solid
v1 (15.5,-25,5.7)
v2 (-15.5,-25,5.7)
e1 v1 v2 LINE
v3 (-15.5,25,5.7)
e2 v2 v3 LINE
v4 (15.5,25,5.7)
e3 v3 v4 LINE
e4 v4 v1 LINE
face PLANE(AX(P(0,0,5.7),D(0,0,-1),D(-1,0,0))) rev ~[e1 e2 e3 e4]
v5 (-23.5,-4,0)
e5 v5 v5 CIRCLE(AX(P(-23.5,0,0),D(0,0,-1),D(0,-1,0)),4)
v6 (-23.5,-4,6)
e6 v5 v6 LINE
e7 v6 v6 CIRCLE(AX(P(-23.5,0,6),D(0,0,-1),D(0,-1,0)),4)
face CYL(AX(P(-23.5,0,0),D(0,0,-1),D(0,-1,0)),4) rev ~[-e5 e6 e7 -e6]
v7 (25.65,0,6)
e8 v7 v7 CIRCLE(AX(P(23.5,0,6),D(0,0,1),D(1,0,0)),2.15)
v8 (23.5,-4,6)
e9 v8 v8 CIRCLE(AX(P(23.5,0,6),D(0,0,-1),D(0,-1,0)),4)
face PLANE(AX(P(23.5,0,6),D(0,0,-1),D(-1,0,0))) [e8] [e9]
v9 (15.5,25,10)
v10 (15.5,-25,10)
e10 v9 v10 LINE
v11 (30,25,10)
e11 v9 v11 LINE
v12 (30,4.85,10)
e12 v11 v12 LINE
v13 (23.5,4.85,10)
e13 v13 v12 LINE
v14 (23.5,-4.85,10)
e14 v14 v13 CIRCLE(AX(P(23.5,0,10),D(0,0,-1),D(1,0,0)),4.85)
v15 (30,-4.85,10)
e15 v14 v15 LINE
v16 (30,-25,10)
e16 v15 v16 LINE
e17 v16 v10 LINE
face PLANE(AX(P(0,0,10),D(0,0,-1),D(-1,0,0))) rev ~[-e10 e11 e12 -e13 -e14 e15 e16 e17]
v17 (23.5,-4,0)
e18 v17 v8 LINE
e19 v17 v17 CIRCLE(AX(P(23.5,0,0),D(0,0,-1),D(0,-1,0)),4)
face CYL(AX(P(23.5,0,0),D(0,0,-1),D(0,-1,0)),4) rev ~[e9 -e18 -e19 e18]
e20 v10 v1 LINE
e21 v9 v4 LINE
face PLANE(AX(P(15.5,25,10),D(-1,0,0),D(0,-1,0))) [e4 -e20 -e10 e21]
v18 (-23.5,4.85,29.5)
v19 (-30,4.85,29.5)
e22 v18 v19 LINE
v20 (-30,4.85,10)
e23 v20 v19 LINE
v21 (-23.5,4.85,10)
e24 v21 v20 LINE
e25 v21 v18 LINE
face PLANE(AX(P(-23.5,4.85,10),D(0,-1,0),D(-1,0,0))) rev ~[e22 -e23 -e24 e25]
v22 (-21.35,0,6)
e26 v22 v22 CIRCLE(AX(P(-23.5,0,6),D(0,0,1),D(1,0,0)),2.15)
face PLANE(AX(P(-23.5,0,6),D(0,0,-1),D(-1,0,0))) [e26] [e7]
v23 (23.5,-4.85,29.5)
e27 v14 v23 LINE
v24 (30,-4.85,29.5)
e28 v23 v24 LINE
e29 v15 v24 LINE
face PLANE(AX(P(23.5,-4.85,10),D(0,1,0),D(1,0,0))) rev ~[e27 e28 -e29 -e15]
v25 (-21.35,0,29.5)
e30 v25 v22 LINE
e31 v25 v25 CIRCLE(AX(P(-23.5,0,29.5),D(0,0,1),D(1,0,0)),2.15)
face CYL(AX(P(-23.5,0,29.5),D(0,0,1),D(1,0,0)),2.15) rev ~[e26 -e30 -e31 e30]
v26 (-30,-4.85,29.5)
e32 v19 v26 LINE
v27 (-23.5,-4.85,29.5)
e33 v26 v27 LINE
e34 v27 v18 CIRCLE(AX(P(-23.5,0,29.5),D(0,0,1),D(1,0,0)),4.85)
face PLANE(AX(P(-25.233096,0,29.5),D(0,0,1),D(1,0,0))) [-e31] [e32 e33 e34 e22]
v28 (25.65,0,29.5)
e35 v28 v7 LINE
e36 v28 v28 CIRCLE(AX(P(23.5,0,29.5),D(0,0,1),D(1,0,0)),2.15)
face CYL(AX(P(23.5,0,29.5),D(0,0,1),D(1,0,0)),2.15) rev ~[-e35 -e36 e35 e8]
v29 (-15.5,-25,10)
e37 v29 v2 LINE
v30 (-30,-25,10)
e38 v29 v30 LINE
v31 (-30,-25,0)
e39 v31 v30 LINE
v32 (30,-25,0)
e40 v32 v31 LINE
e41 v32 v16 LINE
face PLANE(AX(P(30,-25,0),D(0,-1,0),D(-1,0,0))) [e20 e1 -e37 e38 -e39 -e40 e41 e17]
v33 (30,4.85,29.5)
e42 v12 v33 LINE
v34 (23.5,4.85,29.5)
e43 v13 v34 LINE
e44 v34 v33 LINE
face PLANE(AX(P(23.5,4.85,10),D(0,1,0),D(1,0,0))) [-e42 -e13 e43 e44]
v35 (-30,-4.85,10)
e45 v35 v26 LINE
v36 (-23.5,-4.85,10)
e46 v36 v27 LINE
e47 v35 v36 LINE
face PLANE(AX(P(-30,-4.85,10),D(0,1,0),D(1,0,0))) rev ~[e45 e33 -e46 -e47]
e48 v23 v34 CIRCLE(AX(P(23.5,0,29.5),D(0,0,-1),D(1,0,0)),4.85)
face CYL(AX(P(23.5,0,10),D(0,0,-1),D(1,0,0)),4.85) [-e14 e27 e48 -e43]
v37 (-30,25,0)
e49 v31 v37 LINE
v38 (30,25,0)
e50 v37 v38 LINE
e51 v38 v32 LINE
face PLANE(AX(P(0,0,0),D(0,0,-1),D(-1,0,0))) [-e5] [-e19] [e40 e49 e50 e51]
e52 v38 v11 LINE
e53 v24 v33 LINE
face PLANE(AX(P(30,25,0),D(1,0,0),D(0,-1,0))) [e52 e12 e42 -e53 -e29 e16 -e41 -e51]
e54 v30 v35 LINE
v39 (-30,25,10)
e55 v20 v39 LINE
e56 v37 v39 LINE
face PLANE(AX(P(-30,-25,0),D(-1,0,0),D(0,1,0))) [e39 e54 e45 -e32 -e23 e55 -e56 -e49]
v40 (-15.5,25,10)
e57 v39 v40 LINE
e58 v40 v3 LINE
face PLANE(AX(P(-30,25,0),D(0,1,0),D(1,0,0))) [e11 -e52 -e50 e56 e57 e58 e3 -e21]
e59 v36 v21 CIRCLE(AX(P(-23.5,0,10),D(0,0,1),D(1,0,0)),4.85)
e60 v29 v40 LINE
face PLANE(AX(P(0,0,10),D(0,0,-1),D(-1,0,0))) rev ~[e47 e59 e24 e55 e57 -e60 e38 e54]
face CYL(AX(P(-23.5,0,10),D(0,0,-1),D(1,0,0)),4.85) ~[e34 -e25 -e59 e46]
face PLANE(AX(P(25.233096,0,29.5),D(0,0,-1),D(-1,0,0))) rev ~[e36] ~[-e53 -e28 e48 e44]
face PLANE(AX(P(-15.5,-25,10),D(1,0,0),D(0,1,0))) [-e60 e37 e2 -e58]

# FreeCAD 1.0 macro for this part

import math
import FreeCAD as App
import Part
import Sketcher

V = App.Vector
Q = App.Units.Quantity


def add_polygon(sketch, points):
    """Adds a closed chain of lines whose ends are joined by coincident constraints."""
    first, n = sketch.GeometryCount, len(points)
    for a, b in zip(points, points[1:] + points[:1]):
        sketch.addGeometry(Part.LineSegment(App.Vector(*a, 0), App.Vector(*b, 0)), False)
    for i in range(n):
        sketch.addConstraint(Sketcher.Constraint("Coincident", first + i, 2, first + (i + 1) % n, 1))

doc = App.newDocument("Part")
params = doc.addObject("Spreadsheet::Sheet", "Params")
for row, (alias, value) in enumerate([
    ("sketch1_height", "50 mm"),
    ("pad1_length", "10 mm"),
    ("sketch2_radius", "4.85 mm"),
    ("sketch2_width", "6.5 mm"),
    ("pad2_length", "19.5 mm"),
    ("sketch3_diameter", "4.3 mm"),
    ("pocket1_length", "72.3664 mm"),
    ("sketch4_diameter", "8 mm"),
    ("pocket2_length", "6 mm"),
    ("sketch5_width", "31 mm"),
    ("sketch5_height", "50 mm"),
    ("pocket3_length", "4.3 mm"),
], start=1):
    params.set(f"A{row}", alias)
    params.set(f"B{row}", "=" + value)
    params.setAlias(f"B{row}", alias)

body = doc.addObject("PartDesign::Body", "Body")

# Sketch on XY plane
sketch1 = body.newObject("Sketcher::SketchObject", "Sketch")
sketch1.AttachmentSupport = (doc.getObject("XY_Plane"), [""])
sketch1.MapMode = "FlatFace"
add_polygon(sketch1, [(-30, -25), (30, -25), (30, 25), (-30, 25)])  # lines 0-3
sketch1.addConstraint([
    Sketcher.Constraint("Horizontal", 0),
    Sketcher.Constraint("Vertical", 1),
    Sketcher.Constraint("Horizontal", 2),
    Sketcher.Constraint("Vertical", 3),
    Sketcher.Constraint("Symmetric", 0, 2, 2, 2, -1, 1),
    Sketcher.Constraint("DistanceX", -1, 1, 0, 2, Q("30 mm")),
    Sketcher.Constraint("DistanceY", 1, 1, 1, 2, Q("50 mm")),
])
sketch1.setExpression("Constraints[10]", "Params.sketch1_height")
pad1 = body.newObject("PartDesign::Pad", "Pad")
pad1.Profile = sketch1
pad1.setExpression("Length", "Params.pad1_length")

# Sketch on XY plane
sketch2 = body.newObject("Sketcher::SketchObject", "Sketch001")
sketch2.AttachmentSupport = (doc.getObject("XY_Plane"), [""])
sketch2.MapMode = "FlatFace"
sketch2.AttachmentOffset = App.Placement(V(0, 0, 10), App.Rotation())
sketch2.addGeometry([
    Part.ArcOfCircle(Part.Circle(V(-23.5, 0, 0), V(0, 0, 1), 4.85), math.radians(-90), math.radians(90)),  # 0
    Part.LineSegment(V(-23.5, 4.85, 0), V(-30, 4.85, 0)),  # 1
    Part.LineSegment(V(-30, 4.85, 0), V(-30, -4.85, 0)),  # 2
    Part.LineSegment(V(-30, -4.85, 0), V(-23.5, -4.85, 0)),  # 3
    Part.LineSegment(V(30, 4.85, 0), V(23.5, 4.85, 0)),  # 4
    Part.ArcOfCircle(Part.Circle(V(23.5, 0, 0), V(0, 0, 1), 4.85), math.radians(90), math.radians(270)),  # 5
    Part.LineSegment(V(23.5, -4.85, 0), V(30, -4.85, 0)),  # 6
    Part.LineSegment(V(30, -4.85, 0), V(30, 4.85, 0)),  # 7
], False)
sketch2.addConstraint([
    Sketcher.Constraint("Tangent", 0, 2, 1, 1),
    Sketcher.Constraint("Coincident", 1, 2, 2, 1),
    Sketcher.Constraint("Coincident", 2, 2, 3, 1),
    Sketcher.Constraint("Tangent", 3, 2, 0, 1),
    Sketcher.Constraint("Tangent", 4, 2, 5, 1),
    Sketcher.Constraint("Tangent", 5, 2, 6, 1),
    Sketcher.Constraint("Coincident", 6, 2, 7, 1),
    Sketcher.Constraint("Coincident", 7, 2, 4, 1),
    Sketcher.Constraint("Horizontal", 1),
    Sketcher.Constraint("Vertical", 2),
    Sketcher.Constraint("Horizontal", 3),
    Sketcher.Constraint("Horizontal", 4),
    Sketcher.Constraint("Horizontal", 6),
    Sketcher.Constraint("Vertical", 7),
    Sketcher.Constraint("Equal", 0, 5),
    Sketcher.Constraint("Symmetric", 0, 3, 5, 3, -1, 1),
    Sketcher.Constraint("Symmetric", 2, 2, 6, 2, -2),
    Sketcher.Constraint("Radius", 0, Q("4.85 mm")),
    Sketcher.Constraint("DistanceX", 1, 2, 1, 1, Q("6.5 mm")),
    Sketcher.Constraint("DistanceX", 1, 2, -1, 1, Q("30 mm")),
])
sketch2.setExpression("Constraints[17]", "Params.sketch2_radius")
sketch2.setExpression("Constraints[18]", "Params.sketch2_width")
pad2 = body.newObject("PartDesign::Pad", "Pad001")
pad2.Profile = sketch2
pad2.setExpression("Length", "Params.pad2_length")

# Sketch on XY plane
sketch3 = body.newObject("Sketcher::SketchObject", "Sketch002")
sketch3.AttachmentSupport = (doc.getObject("XY_Plane"), [""])
sketch3.MapMode = "FlatFace"
sketch3.AttachmentOffset = App.Placement(V(0, 0, 29.5), App.Rotation())
sketch3.addGeometry([
    Part.Circle(V(-23.5, 0, 0), V(0, 0, 1), 2.15),
    Part.Circle(V(23.5, 0, 0), V(0, 0, 1), 2.15),
], False)
sketch3.addConstraint([
    Sketcher.Constraint("Equal", 0, 1),
    Sketcher.Constraint("Symmetric", 0, 3, 1, 3, -1, 1),
    Sketcher.Constraint("PointOnObject", 0, 3, -1),
    Sketcher.Constraint("Diameter", 0, Q("4.3 mm")),
    Sketcher.Constraint("DistanceX", 0, 3, 1, 3, Q("47 mm")),
])
sketch3.setExpression("Constraints[3]", "Params.sketch3_diameter")
pocket1 = body.newObject("PartDesign::Pocket", "Pocket")
pocket1.Profile = sketch3
pocket1.setExpression("Length", "Params.pocket1_length")

# Sketch on XY plane
sketch4 = body.newObject("Sketcher::SketchObject", "Sketch003")
sketch4.AttachmentSupport = (doc.getObject("XY_Plane"), [""])
sketch4.MapMode = "FlatFace"
sketch4.addGeometry([
    Part.Circle(V(23.5, 0, 0), V(0, 0, 1), 4),
    Part.Circle(V(-23.5, 0, 0), V(0, 0, 1), 4),
], False)
sketch4.addConstraint([
    Sketcher.Constraint("Equal", 0, 1),
    Sketcher.Constraint("Symmetric", 0, 3, 1, 3, -1, 1),
    Sketcher.Constraint("PointOnObject", 0, 3, -1),
    Sketcher.Constraint("Diameter", 0, Q("8 mm")),
    Sketcher.Constraint("DistanceX", 1, 3, 0, 3, Q("47 mm")),
])
sketch4.setExpression("Constraints[3]", "Params.sketch4_diameter")
pocket2 = body.newObject("PartDesign::Pocket", "Pocket001")
pocket2.Profile = sketch4
pocket2.setExpression("Length", "Params.pocket2_length")
pocket2.Reversed = True

# Sketch on XY plane
sketch5 = body.newObject("Sketcher::SketchObject", "Sketch004")
sketch5.AttachmentSupport = (doc.getObject("XY_Plane"), [""])
sketch5.MapMode = "FlatFace"
sketch5.AttachmentOffset = App.Placement(V(0, 0, 10), App.Rotation())
add_polygon(sketch5, [(15.5, 25), (-15.5, 25), (-15.5, -25), (15.5, -25)])  # lines 0-3
sketch5.addConstraint([
    Sketcher.Constraint("Horizontal", 0),
    Sketcher.Constraint("Vertical", 1),
    Sketcher.Constraint("Horizontal", 2),
    Sketcher.Constraint("Vertical", 3),
    Sketcher.Constraint("Symmetric", 0, 2, 2, 2, -1, 1),
    Sketcher.Constraint("DistanceX", 0, 2, 0, 1, Q("31 mm")),
    Sketcher.Constraint("DistanceY", 1, 2, 1, 1, Q("50 mm")),
])
sketch5.setExpression("Constraints[9]", "Params.sketch5_width")
sketch5.setExpression("Constraints[10]", "Params.sketch5_height")
pocket3 = body.newObject("PartDesign::Pocket", "Pocket002")
pocket3.Profile = sketch5
pocket3.setExpression("Length", "Params.pocket3_length")

doc.recompute()
